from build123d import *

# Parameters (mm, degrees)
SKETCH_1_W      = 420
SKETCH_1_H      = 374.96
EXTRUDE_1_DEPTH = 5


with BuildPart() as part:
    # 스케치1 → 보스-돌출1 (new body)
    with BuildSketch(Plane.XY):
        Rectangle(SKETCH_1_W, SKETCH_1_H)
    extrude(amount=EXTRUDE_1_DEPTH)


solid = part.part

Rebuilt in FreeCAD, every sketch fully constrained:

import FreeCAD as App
import Part
import Sketcher

V = App.Vector


def add_polygon(sketch, points):
    """Adds a closed chain of lines whose ends are joined by coincident constraints."""
    first, n = sketch.GeometryCount, len(points)
    for a, b in zip(points, points[1:] + points[:1]):
        sketch.addGeometry(Part.LineSegment(App.Vector(*a, 0), App.Vector(*b, 0)), False)
    for i in range(n):
        sketch.addConstraint(Sketcher.Constraint("Coincident", first + i, 2, first + (i + 1) % n, 1))

doc = App.newDocument("Part")
body = doc.addObject("PartDesign::Body", "Body")

# Sketch on XY plane
sketch1 = body.newObject("Sketcher::SketchObject", "Sketch")
sketch1.AttachmentSupport = (doc.getObject("XY_Plane"), [""])
sketch1.MapMode = "FlatFace"
add_polygon(sketch1, [(-210, 187), (-210, -187), (210, -187), (210, 187)])  # lines 0-3
sketch1.addConstraint([
    Sketcher.Constraint("Vertical", 0),
    Sketcher.Constraint("Horizontal", 1),
    Sketcher.Constraint("Vertical", 2),
    Sketcher.Constraint("Horizontal", 3),
    Sketcher.Constraint("Symmetric", 0, 2, 2, 2, -1, 1),
    Sketcher.Constraint("DistanceX", 1, 1, 1, 2, 420.0),
    Sketcher.Constraint("DistanceY", 0, 2, 0, 1, 374.96),
])
pad1 = body.newObject("PartDesign::Pad", "Pad")
pad1.Profile = sketch1
pad1.Length = 5

doc.recompute()
